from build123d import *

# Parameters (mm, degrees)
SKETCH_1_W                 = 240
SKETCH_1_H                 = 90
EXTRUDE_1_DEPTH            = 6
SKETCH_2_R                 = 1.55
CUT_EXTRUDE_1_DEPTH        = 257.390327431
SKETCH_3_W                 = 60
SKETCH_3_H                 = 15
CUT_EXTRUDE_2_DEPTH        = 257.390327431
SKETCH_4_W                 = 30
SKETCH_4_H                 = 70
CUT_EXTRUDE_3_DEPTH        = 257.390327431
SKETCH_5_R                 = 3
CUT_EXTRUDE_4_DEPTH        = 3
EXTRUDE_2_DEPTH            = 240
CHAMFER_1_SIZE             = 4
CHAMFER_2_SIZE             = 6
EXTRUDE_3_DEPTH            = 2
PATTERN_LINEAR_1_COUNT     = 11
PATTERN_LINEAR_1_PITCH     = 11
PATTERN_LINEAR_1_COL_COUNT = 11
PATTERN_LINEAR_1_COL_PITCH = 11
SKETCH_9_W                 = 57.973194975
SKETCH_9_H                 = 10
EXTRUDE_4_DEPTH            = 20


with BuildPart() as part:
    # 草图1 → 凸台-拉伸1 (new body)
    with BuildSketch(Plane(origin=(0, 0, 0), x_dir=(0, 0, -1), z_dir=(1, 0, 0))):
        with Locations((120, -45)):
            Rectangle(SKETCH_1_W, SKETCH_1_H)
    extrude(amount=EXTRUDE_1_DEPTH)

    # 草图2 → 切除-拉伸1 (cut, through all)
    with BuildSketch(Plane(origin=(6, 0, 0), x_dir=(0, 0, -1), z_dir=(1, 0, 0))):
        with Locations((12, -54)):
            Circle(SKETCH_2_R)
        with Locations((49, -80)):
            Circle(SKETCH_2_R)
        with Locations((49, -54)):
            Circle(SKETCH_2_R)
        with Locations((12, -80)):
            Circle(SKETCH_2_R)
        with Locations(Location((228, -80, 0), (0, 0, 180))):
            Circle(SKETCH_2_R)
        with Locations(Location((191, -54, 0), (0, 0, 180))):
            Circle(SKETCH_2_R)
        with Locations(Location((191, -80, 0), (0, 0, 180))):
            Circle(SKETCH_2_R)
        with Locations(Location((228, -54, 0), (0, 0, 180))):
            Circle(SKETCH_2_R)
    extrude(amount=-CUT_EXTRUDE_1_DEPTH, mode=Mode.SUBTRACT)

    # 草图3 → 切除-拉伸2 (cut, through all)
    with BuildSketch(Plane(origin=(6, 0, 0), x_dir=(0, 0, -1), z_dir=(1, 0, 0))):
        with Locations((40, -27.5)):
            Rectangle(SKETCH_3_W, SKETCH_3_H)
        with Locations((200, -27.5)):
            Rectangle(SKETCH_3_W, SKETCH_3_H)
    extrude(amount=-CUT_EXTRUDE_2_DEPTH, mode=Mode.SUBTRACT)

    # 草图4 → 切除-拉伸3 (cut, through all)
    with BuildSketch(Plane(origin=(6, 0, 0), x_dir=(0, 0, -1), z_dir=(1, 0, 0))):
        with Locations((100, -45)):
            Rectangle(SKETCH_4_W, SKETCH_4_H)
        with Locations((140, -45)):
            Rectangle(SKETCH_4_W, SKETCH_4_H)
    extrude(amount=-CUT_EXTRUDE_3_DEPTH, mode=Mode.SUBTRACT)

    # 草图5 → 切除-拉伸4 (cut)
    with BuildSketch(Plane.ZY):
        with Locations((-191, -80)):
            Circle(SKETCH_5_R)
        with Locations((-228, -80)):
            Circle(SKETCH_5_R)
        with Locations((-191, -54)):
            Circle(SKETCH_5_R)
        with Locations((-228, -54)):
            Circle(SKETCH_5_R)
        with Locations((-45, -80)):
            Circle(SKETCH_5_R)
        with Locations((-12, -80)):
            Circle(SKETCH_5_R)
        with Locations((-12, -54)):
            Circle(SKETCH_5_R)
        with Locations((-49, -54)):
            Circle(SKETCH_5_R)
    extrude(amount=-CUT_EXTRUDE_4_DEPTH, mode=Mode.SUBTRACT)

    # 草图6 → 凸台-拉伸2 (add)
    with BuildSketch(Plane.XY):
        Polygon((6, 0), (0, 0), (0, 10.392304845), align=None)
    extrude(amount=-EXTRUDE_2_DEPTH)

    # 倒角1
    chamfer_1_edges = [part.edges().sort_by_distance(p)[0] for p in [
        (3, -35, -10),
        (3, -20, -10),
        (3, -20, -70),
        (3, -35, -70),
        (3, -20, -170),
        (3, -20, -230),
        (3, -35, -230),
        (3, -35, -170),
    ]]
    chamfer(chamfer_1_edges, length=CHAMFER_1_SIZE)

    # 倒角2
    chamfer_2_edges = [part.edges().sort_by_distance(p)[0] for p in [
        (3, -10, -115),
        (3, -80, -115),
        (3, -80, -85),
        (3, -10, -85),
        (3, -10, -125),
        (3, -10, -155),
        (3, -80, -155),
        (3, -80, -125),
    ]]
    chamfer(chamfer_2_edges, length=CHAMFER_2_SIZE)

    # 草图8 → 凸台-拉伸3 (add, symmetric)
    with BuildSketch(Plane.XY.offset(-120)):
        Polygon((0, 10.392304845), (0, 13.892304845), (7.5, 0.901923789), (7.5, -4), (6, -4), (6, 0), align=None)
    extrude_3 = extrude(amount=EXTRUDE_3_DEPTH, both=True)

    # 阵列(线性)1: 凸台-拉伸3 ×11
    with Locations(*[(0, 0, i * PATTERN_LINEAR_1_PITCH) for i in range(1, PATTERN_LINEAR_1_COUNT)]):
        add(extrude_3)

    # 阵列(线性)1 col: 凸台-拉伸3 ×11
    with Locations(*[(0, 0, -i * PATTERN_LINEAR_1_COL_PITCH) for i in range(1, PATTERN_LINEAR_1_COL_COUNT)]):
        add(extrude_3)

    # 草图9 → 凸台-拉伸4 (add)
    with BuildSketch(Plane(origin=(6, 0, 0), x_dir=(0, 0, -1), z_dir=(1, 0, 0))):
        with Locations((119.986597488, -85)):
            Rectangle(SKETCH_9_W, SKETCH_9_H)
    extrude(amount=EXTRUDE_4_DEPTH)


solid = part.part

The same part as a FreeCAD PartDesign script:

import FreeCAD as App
import Part
import Sketcher
from FreeCAD import Vector
Q = App.Units.Quantity


def edges_at(feature, points):
    """Names of the edges that pass closest to the given points."""
    edges = feature.Shape.Edges
    near = lambda p: min(range(len(edges)), key=lambda i: edges[i].distToShape(Part.Vertex(*p))[0])
    return sorted({f"Edge{near(p) + 1}" for p in points})


def add_polygon(sketch, points):
    """Adds a closed chain of lines whose ends are joined by coincident constraints."""
    first, n = sketch.GeometryCount, len(points)
    for a, b in zip(points, points[1:] + points[:1]):
        sketch.addGeometry(Part.LineSegment(App.Vector(*a, 0), App.Vector(*b, 0)), False)
    for i in range(n):
        sketch.addConstraint(Sketcher.Constraint("Coincident", first + i, 2, first + (i + 1) % n, 1))

doc = App.newDocument("Part")
body = doc.addObject("PartDesign::Body", "Body")

sketch1 = body.newObject("Sketcher::SketchObject", "Sketch")
sketch1.AttachmentSupport = (doc.getObject("YZ_Plane"), [""])
sketch1.MapMode = "FlatFace"
add_polygon(sketch1, [(0, 0), (-90, 0), (-90, -240), (0, -240)])
sketch1.addConstraint(Sketcher.Constraint("Horizontal", 0))
sketch1.addConstraint(Sketcher.Constraint("Vertical", 1))
sketch1.addConstraint(Sketcher.Constraint("Horizontal", 2))
sketch1.addConstraint(Sketcher.Constraint("Vertical", 3))
sketch1.addConstraint(Sketcher.Constraint("Coincident", 3, 2, -1, 1))
sketch1.addConstraint(Sketcher.Constraint("DistanceX", 0, 2, 0, 1, Q("90 mm")))
sketch1.addConstraint(Sketcher.Constraint("DistanceY", 1, 2, 1, 1, Q("240 mm")))
pad1 = body.newObject("PartDesign::Pad", "Pad")
pad1.Profile = sketch1
pad1.Length = 6

sketch2 = body.newObject("Sketcher::SketchObject", "Sketch001")
sketch2.AttachmentSupport = (doc.getObject("YZ_Plane"), [""])
sketch2.MapMode = "FlatFace"
sketch2.AttachmentOffset = App.Placement(Vector(0, 0, 6), App.Rotation())
sketch2.addGeometry(Part.Circle(Vector(-54, -12, 0), Vector(0, 0, 1), 1.55), False)
sketch2.addGeometry(Part.Circle(Vector(-80, -49, 0), Vector(0, 0, 1), 1.55), False)
sketch2.addGeometry(Part.Circle(Vector(-54, -49, 0), Vector(0, 0, 1), 1.55), False)
sketch2.addGeometry(Part.Circle(Vector(-80, -12, 0), Vector(0, 0, 1), 1.55), False)
sketch2.addGeometry(Part.Circle(Vector(-80, -228, 0), Vector(0, 0, 1), 1.55), False)
sketch2.addGeometry(Part.Circle(Vector(-54, -191, 0), Vector(0, 0, 1), 1.55), False)
sketch2.addGeometry(Part.Circle(Vector(-80, -191, 0), Vector(0, 0, 1), 1.55), False)
sketch2.addGeometry(Part.Circle(Vector(-54, -228, 0), Vector(0, 0, 1), 1.55), False)
sketch2.addConstraint(Sketcher.Constraint("Equal", 0, 1))
sketch2.addConstraint(Sketcher.Constraint("Equal", 1, 2))
sketch2.addConstraint(Sketcher.Constraint("Equal", 2, 3))
sketch2.addConstraint(Sketcher.Constraint("Equal", 3, 4))
sketch2.addConstraint(Sketcher.Constraint("Equal", 4, 5))
sketch2.addConstraint(Sketcher.Constraint("Equal", 5, 6))
sketch2.addConstraint(Sketcher.Constraint("Equal", 6, 7))
sketch2.addConstraint(Sketcher.Constraint("Horizontal", 1, 3, 2, 3))
sketch2.addConstraint(Sketcher.Constraint("Horizontal", 0, 3, 3, 3))
sketch2.addConstraint(Sketcher.Constraint("Horizontal", 5, 3, 6, 3))
sketch2.addConstraint(Sketcher.Constraint("Horizontal", 4, 3, 7, 3))
sketch2.addConstraint(Sketcher.Constraint("Vertical", 0, 3, 2, 3))
sketch2.addConstraint(Sketcher.Constraint("Vertical", 1, 3, 3, 3))
sketch2.addConstraint(Sketcher.Constraint("Vertical", 3, 3, 4, 3))
sketch2.addConstraint(Sketcher.Constraint("Vertical", 2, 3, 5, 3))
sketch2.addConstraint(Sketcher.Constraint("Vertical", 4, 3, 6, 3))
sketch2.addConstraint(Sketcher.Constraint("Vertical", 5, 3, 7, 3))
sketch2.addConstraint(Sketcher.Constraint("Diameter", 0, Q("3.1 mm")))
sketch2.addConstraint(Sketcher.Constraint("DistanceX", 0, 3, -1, 1, Q("54 mm")))
sketch2.addConstraint(Sketcher.Constraint("DistanceY", 0, 3, -1, 1, Q("12 mm")))
sketch2.addConstraint(Sketcher.Constraint("DistanceX", 1, 3, -1, 1, Q("80 mm")))
sketch2.addConstraint(Sketcher.Constraint("DistanceY", 1, 3, -1, 1, Q("49 mm")))
sketch2.addConstraint(Sketcher.Constraint("DistanceY", 4, 3, -1, 1, Q("228 mm")))
sketch2.addConstraint(Sketcher.Constraint("DistanceY", 5, 3, -1, 1, Q("191 mm")))
pocket1 = body.newObject("PartDesign::Pocket", "Pocket")
pocket1.Profile = sketch2
pocket1.Type = "ThroughAll"

sketch3 = body.newObject("Sketcher::SketchObject", "Sketch002")
sketch3.AttachmentSupport = (doc.getObject("YZ_Plane"), [""])
sketch3.MapMode = "FlatFace"
sketch3.AttachmentOffset = App.Placement(Vector(0, 0, 6), App.Rotation())
add_polygon(sketch3, [(-20, -10), (-35, -10), (-35, -70), (-20, -70)])
add_polygon(sketch3, [(-20, -170), (-35, -170), (-35, -230), (-20, -230)])
sketch3.addConstraint(Sketcher.Constraint("Horizontal", 0))
sketch3.addConstraint(Sketcher.Constraint("Vertical", 1))
sketch3.addConstraint(Sketcher.Constraint("Horizontal", 2))
sketch3.addConstraint(Sketcher.Constraint("Vertical", 3))
sketch3.addConstraint(Sketcher.Constraint("Horizontal", 4))
sketch3.addConstraint(Sketcher.Constraint("Vertical", 5))
sketch3.addConstraint(Sketcher.Constraint("Horizontal", 6))
sketch3.addConstraint(Sketcher.Constraint("Vertical", 7))
sketch3.addConstraint(Sketcher.Constraint("Vertical", 1, 2, 4, 2))
sketch3.addConstraint(Sketcher.Constraint("Vertical", 3, 2, 6, 2))
sketch3.addConstraint(Sketcher.Constraint("Equal", 3, 5))
sketch3.addConstraint(Sketcher.Constraint("DistanceX", 0, 2, 0, 1, Q("15 mm")))
sketch3.addConstraint(Sketcher.Constraint("DistanceY", 1, 2, 1, 1, Q("60 mm")))
sketch3.addConstraint(Sketcher.Constraint("DistanceX", 0, 2, -1, 1, Q("35 mm")))
sketch3.addConstraint(Sketcher.Constraint("DistanceY", 0, 2, -1, 1, Q("10 mm")))
sketch3.addConstraint(Sketcher.Constraint("DistanceY", 4, 2, -1, 1, Q("170 mm")))
pocket2 = body.newObject("PartDesign::Pocket", "Pocket001")
pocket2.Profile = sketch3
pocket2.Type = "ThroughAll"

sketch4 = body.newObject("Sketcher::SketchObject", "Sketch003")
sketch4.AttachmentSupport = (doc.getObject("YZ_Plane"), [""])
sketch4.MapMode = "FlatFace"
sketch4.AttachmentOffset = App.Placement(Vector(0, 0, 6), App.Rotation())
add_polygon(sketch4, [(-10, -85), (-80, -85), (-80, -115), (-10, -115)])
add_polygon(sketch4, [(-10, -125), (-80, -125), (-80, -155), (-10, -155)])
sketch4.addConstraint(Sketcher.Constraint("Horizontal", 0))
sketch4.addConstraint(Sketcher.Constraint("Vertical", 1))
sketch4.addConstraint(Sketcher.Constraint("Horizontal", 2))
sketch4.addConstraint(Sketcher.Constraint("Vertical", 3))
sketch4.addConstraint(Sketcher.Constraint("Horizontal", 4))
sketch4.addConstraint(Sketcher.Constraint("Vertical", 5))
sketch4.addConstraint(Sketcher.Constraint("Horizontal", 6))
sketch4.addConstraint(Sketcher.Constraint("Vertical", 7))
sketch4.addConstraint(Sketcher.Constraint("Vertical", 1, 2, 4, 2))
sketch4.addConstraint(Sketcher.Constraint("Vertical", 3, 2, 6, 2))
sketch4.addConstraint(Sketcher.Constraint("Equal", 3, 5))
sketch4.addConstraint(Sketcher.Constraint("DistanceX", 0, 2, 0, 1, Q("70 mm")))
sketch4.addConstraint(Sketcher.Constraint("DistanceY", 1, 2, 1, 1, Q("30 mm")))
sketch4.addConstraint(Sketcher.Constraint("DistanceX", 0, 2, -1, 1, Q("80 mm")))
sketch4.addConstraint(Sketcher.Constraint("DistanceY", 0, 2, -1, 1, Q("85 mm")))
sketch4.addConstraint(Sketcher.Constraint("DistanceY", 4, 2, -1, 1, Q("125 mm")))
pocket3 = body.newObject("PartDesign::Pocket", "Pocket002")
pocket3.Profile = sketch4
pocket3.Type = "ThroughAll"

sketch5 = body.newObject("Sketcher::SketchObject", "Sketch004")
sketch5.AttachmentSupport = (doc.getObject("YZ_Plane"), [""])
sketch5.MapMode = "FlatFace"
sketch5.addGeometry(Part.Circle(Vector(-80, -191, 0), Vector(0, 0, 1), 3), False)
sketch5.addGeometry(Part.Circle(Vector(-80, -228, 0), Vector(0, 0, 1), 3), False)
sketch5.addGeometry(Part.Circle(Vector(-54, -191, 0), Vector(0, 0, 1), 3), False)
sketch5.addGeometry(Part.Circle(Vector(-54, -228, 0), Vector(0, 0, 1), 3), False)
sketch5.addGeometry(Part.Circle(Vector(-80, -45, 0), Vector(0, 0, 1), 3), False)
sketch5.addGeometry(Part.Circle(Vector(-80, -12, 0), Vector(0, 0, 1), 3), False)
sketch5.addGeometry(Part.Circle(Vector(-54, -12, 0), Vector(0, 0, 1), 3), False)
sketch5.addGeometry(Part.Circle(Vector(-54, -49, 0), Vector(0, 0, 1), 3), False)
sketch5.addConstraint(Sketcher.Constraint("Equal", 0, 1))
sketch5.addConstraint(Sketcher.Constraint("Equal", 1, 2))
sketch5.addConstraint(Sketcher.Constraint("Equal", 2, 3))
sketch5.addConstraint(Sketcher.Constraint("Equal", 3, 4))
sketch5.addConstraint(Sketcher.Constraint("Equal", 4, 5))
sketch5.addConstraint(Sketcher.Constraint("Equal", 5, 6))
sketch5.addConstraint(Sketcher.Constraint("Equal", 6, 7))
sketch5.addConstraint(Sketcher.Constraint("Horizontal", 0, 3, 2, 3))
sketch5.addConstraint(Sketcher.Constraint("Horizontal", 1, 3, 3, 3))
sketch5.addConstraint(Sketcher.Constraint("Horizontal", 5, 3, 6, 3))
sketch5.addConstraint(Sketcher.Constraint("Vertical", 0, 3, 1, 3))
sketch5.addConstraint(Sketcher.Constraint("Vertical", 2, 3, 3, 3))
sketch5.addConstraint(Sketcher.Constraint("Vertical", 1, 3, 4, 3))
sketch5.addConstraint(Sketcher.Constraint("Vertical", 4, 3, 5, 3))
sketch5.addConstraint(Sketcher.Constraint("Vertical", 3, 3, 6, 3))
sketch5.addConstraint(Sketcher.Constraint("Vertical", 6, 3, 7, 3))
sketch5.addConstraint(Sketcher.Constraint("Diameter", 0, Q("6 mm")))
sketch5.addConstraint(Sketcher.Constraint("DistanceX", 0, 3, -1, 1, Q("80 mm")))
sketch5.addConstraint(Sketcher.Constraint("DistanceY", 0, 3, -1, 1, Q("191 mm")))
sketch5.addConstraint(Sketcher.Constraint("DistanceY", 1, 3, -1, 1, Q("228 mm")))
sketch5.addConstraint(Sketcher.Constraint("DistanceX", 2, 3, -1, 1, Q("54 mm")))
sketch5.addConstraint(Sketcher.Constraint("DistanceY", 4, 3, -1, 1, Q("45 mm")))
sketch5.addConstraint(Sketcher.Constraint("DistanceY", 5, 3, -1, 1, Q("12 mm")))
sketch5.addConstraint(Sketcher.Constraint("DistanceY", 7, 3, -1, 1, Q("49 mm")))
pocket4 = body.newObject("PartDesign::Pocket", "Pocket003")
pocket4.Profile = sketch5
pocket4.Length = 3
pocket4.Reversed = True

sketch6 = body.newObject("Sketcher::SketchObject", "Sketch005")
sketch6.AttachmentSupport = (doc.getObject("XY_Plane"), [""])
sketch6.MapMode = "FlatFace"
add_polygon(sketch6, [(0, 0), (6, 0), (0, 10.392305)])
sketch6.addConstraint(Sketcher.Constraint("Horizontal", 0))
sketch6.addConstraint(Sketcher.Constraint("Vertical", 2))
sketch6.addConstraint(Sketcher.Constraint("Coincident", 2, 2, -1, 1))
sketch6.addConstraint(Sketcher.Constraint("DistanceX", 0, 1, 0, 2, Q("6 mm")))
sketch6.addConstraint(Sketcher.Constraint("Angle", 1, Q("120 deg")))
pad2 = body.newObject("PartDesign::Pad", "Pad001")
pad2.Profile = sketch6
pad2.Length = 240
pad2.Reversed = True
doc.recompute()

chamfer = body.newObject("PartDesign::Chamfer", "Chamfer")
chamfer.Base = (pad2, edges_at(pad2, [
    (3, -35, -10),
    (3, -20, -10),
    (3, -20, -70),
    (3, -35, -70),
    (3, -20, -170),
    (3, -20, -230),
    (3, -35, -230),
    (3, -35, -170),
]))
chamfer.Size = 4
doc.recompute()

chamfer2 = body.newObject("PartDesign::Chamfer", "Chamfer001")
chamfer2.Base = (chamfer, edges_at(chamfer, [
    (3, -10, -115),
    (3, -80, -115),
    (3, -80, -85),
    (3, -10, -85),
    (3, -10, -125),
    (3, -10, -155),
    (3, -80, -155),
    (3, -80, -125),
]))
chamfer2.Size = 6

sketch7 = body.newObject("Sketcher::SketchObject", "Sketch006")
sketch7.AttachmentSupport = (doc.getObject("XY_Plane"), [""])
sketch7.MapMode = "FlatFace"
sketch7.AttachmentOffset = App.Placement(Vector(0, 0, -120), App.Rotation())
add_polygon(sketch7, [(0, 13.892305), (0, 10.392305), (6, 0), (6, -4), (7.5, -4), (7.5, 0.901924)])
sketch7.addConstraint(Sketcher.Constraint("Vertical", 0))
sketch7.addConstraint(Sketcher.Constraint("Vertical", 2))
sketch7.addConstraint(Sketcher.Constraint("Horizontal", 3))
sketch7.addConstraint(Sketcher.Constraint("Vertical", 4))
sketch7.addConstraint(Sketcher.Constraint("PointOnObject", 0, 2, -2))
sketch7.addConstraint(Sketcher.Constraint("PointOnObject", 1, 2, -1))
sketch7.addConstraint(Sketcher.Constraint("Parallel", 1, 5))
sketch7.addConstraint(Sketcher.Constraint("DistanceY", 2, 2, 2, 1, Q("4 mm")))
sketch7.addConstraint(Sketcher.Constraint("Angle", 1, Q("-60 deg")))
sketch7.addConstraint(Sketcher.Constraint("Distance", 1, Q("12 mm")))
sketch7.addConstraint(Sketcher.Constraint("Distance", 5, Q("15 mm")))
sketch7.addConstraint(Sketcher.Constraint("DistanceY", 0, 2, 0, 1, Q("3.5 mm")))
pad3 = body.newObject("PartDesign::Pad", "Pad002")
pad3.Profile = sketch7
pad3.Length = 4
pad3.Midplane = True
doc.recompute()

linearpattern = body.newObject("PartDesign::LinearPattern", "LinearPattern")
linearpattern.Originals = [pad3]
linearpattern.Direction = (doc.getObject("Z_Axis"), [""])
linearpattern.Mode = "offset"
linearpattern.Offset = 11
linearpattern.Occurrences = 11
body.Tip = linearpattern
doc.recompute()

linearpattern2 = body.newObject("PartDesign::LinearPattern", "LinearPattern001")
linearpattern2.Originals = [pad3]
linearpattern2.Direction = (doc.getObject("Z_Axis"), [""])
linearpattern2.Mode = "offset"
linearpattern2.Offset = 11
linearpattern2.Occurrences = 11
linearpattern2.Reversed = True
body.Tip = linearpattern2

sketch8 = body.newObject("Sketcher::SketchObject", "Sketch007")
sketch8.AttachmentSupport = (doc.getObject("YZ_Plane"), [""])
sketch8.MapMode = "FlatFace"
sketch8.AttachmentOffset = App.Placement(Vector(0, 0, 6), App.Rotation())
add_polygon(sketch8, [(-80, -91), (-90, -91), (-90, -148.973195), (-80, -148.973195)])
sketch8.addConstraint(Sketcher.Constraint("Horizontal", 0))
sketch8.addConstraint(Sketcher.Constraint("Vertical", 1))
sketch8.addConstraint(Sketcher.Constraint("Horizontal", 2))
sketch8.addConstraint(Sketcher.Constraint("Vertical", 3))
sketch8.addConstraint(Sketcher.Constraint("DistanceX", 0, 2, 0, 1, Q("10 mm")))
sketch8.addConstraint(Sketcher.Constraint("DistanceX", 0, 2, -1, 1, Q("90 mm")))
sketch8.addConstraint(Sketcher.Constraint("DistanceY", 0, 2, -1, 1, Q("91 mm")))
sketch8.addConstraint(Sketcher.Constraint("DistanceY", 1, 2, 1, 1, Q("57.973195 mm")))
pad4 = body.newObject("PartDesign::Pad", "Pad003")
pad4.Profile = sketch8
pad4.Length = 20

doc.recompute()
